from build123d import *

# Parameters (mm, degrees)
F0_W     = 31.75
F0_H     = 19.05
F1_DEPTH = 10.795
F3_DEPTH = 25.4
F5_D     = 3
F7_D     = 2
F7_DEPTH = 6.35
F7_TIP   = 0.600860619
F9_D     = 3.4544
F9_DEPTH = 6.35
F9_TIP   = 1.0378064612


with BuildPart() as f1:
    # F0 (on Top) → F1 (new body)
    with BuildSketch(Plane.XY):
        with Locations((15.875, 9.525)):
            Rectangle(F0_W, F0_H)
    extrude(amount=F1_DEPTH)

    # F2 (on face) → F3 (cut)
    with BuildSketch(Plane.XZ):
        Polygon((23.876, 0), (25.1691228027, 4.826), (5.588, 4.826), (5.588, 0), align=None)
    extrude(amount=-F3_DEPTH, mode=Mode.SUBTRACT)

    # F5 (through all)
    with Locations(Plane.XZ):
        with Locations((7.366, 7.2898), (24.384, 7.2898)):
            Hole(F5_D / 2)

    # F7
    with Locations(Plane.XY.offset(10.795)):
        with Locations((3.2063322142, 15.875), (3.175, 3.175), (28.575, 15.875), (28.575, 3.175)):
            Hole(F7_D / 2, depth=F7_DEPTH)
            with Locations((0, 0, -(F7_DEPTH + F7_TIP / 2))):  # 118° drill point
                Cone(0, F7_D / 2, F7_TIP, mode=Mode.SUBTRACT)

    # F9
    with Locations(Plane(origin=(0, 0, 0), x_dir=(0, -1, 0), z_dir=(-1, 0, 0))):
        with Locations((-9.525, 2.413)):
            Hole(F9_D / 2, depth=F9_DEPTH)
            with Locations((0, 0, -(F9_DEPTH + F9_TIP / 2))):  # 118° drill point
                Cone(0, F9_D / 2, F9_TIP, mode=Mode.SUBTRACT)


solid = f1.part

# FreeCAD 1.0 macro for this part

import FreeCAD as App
import Part
import Sketcher
Q = App.Units.Quantity


def add_polygon(sketch, points):
    """Adds a closed chain of lines whose ends are joined by coincident constraints."""
    first, n = sketch.GeometryCount, len(points)
    for a, b in zip(points, points[1:] + points[:1]):
        sketch.addGeometry(Part.LineSegment(App.Vector(*a, 0), App.Vector(*b, 0)), False)
    for i in range(n):
        sketch.addConstraint(Sketcher.Constraint("Coincident", first + i, 2, first + (i + 1) % n, 1))

doc = App.newDocument("Part")
body = doc.addObject("PartDesign::Body", "Body")

# Sketch on XY plane
sketch1 = body.newObject("Sketcher::SketchObject", "Sketch")
sketch1.AttachmentSupport = (doc.getObject("XY_Plane"), [""])
sketch1.MapMode = "FlatFace"
add_polygon(sketch1, [(0, 19.05), (0, 0), (31.75, 0), (31.75, 19.05)])  # lines 0-3
sketch1.addConstraint([
    Sketcher.Constraint("Vertical", 0),
    Sketcher.Constraint("Horizontal", 1),
    Sketcher.Constraint("Vertical", 2),
    Sketcher.Constraint("Horizontal", 3),
    Sketcher.Constraint("Coincident", 0, 2, -1, 1),
    Sketcher.Constraint("DistanceX", 1, 1, 1, 2, Q("1.25 in")),
    Sketcher.Constraint("DistanceY", 0, 2, 0, 1, Q("0.75 in")),
])
pad1 = body.newObject("PartDesign::Pad", "Pad")
pad1.Profile = sketch1
pad1.Length = Q("0.425 in")

# Sketch on XZ plane
sketch2 = body.newObject("Sketcher::SketchObject", "Sketch001")
sketch2.AttachmentSupport = (doc.getObject("XZ_Plane"), [""])
sketch2.MapMode = "FlatFace"
add_polygon(sketch2, [(23.876, 0), (25.169123, 4.826), (5.588, 4.826), (5.588, 0)])  # lines 0-3
sketch2.addConstraint([
    Sketcher.Constraint("Horizontal", 1),
    Sketcher.Constraint("Vertical", 2),
    Sketcher.Constraint("Horizontal", 3),
    Sketcher.Constraint("PointOnObject", 2, 2, -1),
    Sketcher.Constraint("Angle", 0, Q("75 deg")),
    Sketcher.Constraint("DistanceX", 3, 1, 3, 2, Q("0.72 in")),
    Sketcher.Constraint("DistanceY", 2, 2, 2, 1, Q("0.19 in")),
    Sketcher.Constraint("DistanceX", -1, 1, 1, 2, Q("0.22 in")),
])
pocket1 = body.newObject("PartDesign::Pocket", "Pocket")
pocket1.Profile = sketch2
pocket1.Length = Q("1 in")

# Sketch on XZ plane
sketch3 = body.newObject("Sketcher::SketchObject", "Sketch002")
sketch3.AttachmentSupport = (doc.getObject("XZ_Plane"), [""])
sketch3.MapMode = "FlatFace"
sketch3.addGeometry([
    Part.Circle(App.Vector(7.366, 7.2898, 0), App.Vector(0, 0, 1), 1.5),
    Part.Circle(App.Vector(24.384, 7.2898, 0), App.Vector(0, 0, 1), 1.5),
], False)
sketch3.addConstraint([
    Sketcher.Constraint("Equal", 0, 1),
    Sketcher.Constraint("Horizontal", 0, 3, 1, 3),
    Sketcher.Constraint("Diameter", 0, 3.0),
    Sketcher.Constraint("DistanceX", -1, 1, 0, 3, Q("0.29 in")),
    Sketcher.Constraint("DistanceX", -1, 1, 1, 3, Q("0.96 in")),
    Sketcher.Constraint("DistanceY", -1, 1, 0, 3, Q("0.287 in")),
])
doc.recompute()
hole = body.newObject("PartDesign::Hole", "Hole")
hole.Profile = sketch3
hole.ThreadType = "None"
hole.Diameter = 3
hole.DepthType = "ThroughAll"

# Sketch on XY plane
sketch4 = body.newObject("Sketcher::SketchObject", "Sketch003")
sketch4.AttachmentSupport = (doc.getObject("XY_Plane"), [""])
sketch4.MapMode = "FlatFace"
sketch4.AttachmentOffset = App.Placement(App.Vector(0, 0, 0.425 * 25.4), App.Rotation())
sketch4.addGeometry([
    Part.Circle(App.Vector(3.206332, 15.875, 0), App.Vector(0, 0, 1), 1),
    Part.Circle(App.Vector(3.175, 3.175, 0), App.Vector(0, 0, 1), 1),
    Part.Circle(App.Vector(28.575, 15.875, 0), App.Vector(0, 0, 1), 1),
    Part.Circle(App.Vector(28.575, 3.175, 0), App.Vector(0, 0, 1), 1),
], False)
sketch4.addConstraint([
    Sketcher.Constraint("Equal", 0, 1),
    Sketcher.Constraint("Equal", 1, 2),
    Sketcher.Constraint("Equal", 2, 3),
    Sketcher.Constraint("Horizontal", 0, 3, 2, 3),
    Sketcher.Constraint("Horizontal", 1, 3, 3, 3),
    Sketcher.Constraint("Vertical", 2, 3, 3, 3),
    Sketcher.Constraint("DistanceX", 1, 3, 2, 3, Q("1 in")),
    Sketcher.Constraint("DistanceY", 1, 3, 0, 3, Q("0.5 in")),
    Sketcher.Constraint("Diameter", 0, 2.0),
    Sketcher.Constraint("DistanceY", -1, 1, 0, 3, Q("0.625 in")),
    Sketcher.Constraint("DistanceX", -1, 1, 1, 3, Q("0.125 in")),
    Sketcher.Constraint("DistanceX", -1, 1, 0, 3, 3.206332),
])
doc.recompute()
hole2 = body.newObject("PartDesign::Hole", "Hole001")
hole2.Profile = sketch4
hole2.ThreadType = "None"
hole2.Diameter = 2
hole2.DepthType = "Dimension"
hole2.Depth = Q("0.25 in")
hole2.DrillPoint = "Angled"
hole2.DrillPointAngle = 118

# Sketch on YZ plane
sketch5 = body.newObject("Sketcher::SketchObject", "Sketch004")
sketch5.AttachmentSupport = (doc.getObject("YZ_Plane"), [""])
sketch5.MapMode = "FlatFace"
sketch5.addGeometry(Part.Circle(App.Vector(9.525, 2.413, 0), App.Vector(0, 0, 1), 1.7272), False)
sketch5.addConstraint([
    Sketcher.Constraint("Diameter", 0, Q("0.136 in")),
    Sketcher.Constraint("DistanceX", -1, 1, 0, 3, Q("0.375 in")),
    Sketcher.Constraint("DistanceY", -1, 1, 0, 3, Q("0.095 in")),
])
doc.recompute()
hole3 = body.newObject("PartDesign::Hole", "Hole002")
hole3.Profile = sketch5
hole3.ThreadType = "None"
hole3.Diameter = Q("0.136 in")
hole3.DepthType = "Dimension"
hole3.Depth = Q("0.25 in")
hole3.DrillPoint = "Angled"
hole3.DrillPointAngle = 118
hole3.Reversed = True

doc.recompute()
